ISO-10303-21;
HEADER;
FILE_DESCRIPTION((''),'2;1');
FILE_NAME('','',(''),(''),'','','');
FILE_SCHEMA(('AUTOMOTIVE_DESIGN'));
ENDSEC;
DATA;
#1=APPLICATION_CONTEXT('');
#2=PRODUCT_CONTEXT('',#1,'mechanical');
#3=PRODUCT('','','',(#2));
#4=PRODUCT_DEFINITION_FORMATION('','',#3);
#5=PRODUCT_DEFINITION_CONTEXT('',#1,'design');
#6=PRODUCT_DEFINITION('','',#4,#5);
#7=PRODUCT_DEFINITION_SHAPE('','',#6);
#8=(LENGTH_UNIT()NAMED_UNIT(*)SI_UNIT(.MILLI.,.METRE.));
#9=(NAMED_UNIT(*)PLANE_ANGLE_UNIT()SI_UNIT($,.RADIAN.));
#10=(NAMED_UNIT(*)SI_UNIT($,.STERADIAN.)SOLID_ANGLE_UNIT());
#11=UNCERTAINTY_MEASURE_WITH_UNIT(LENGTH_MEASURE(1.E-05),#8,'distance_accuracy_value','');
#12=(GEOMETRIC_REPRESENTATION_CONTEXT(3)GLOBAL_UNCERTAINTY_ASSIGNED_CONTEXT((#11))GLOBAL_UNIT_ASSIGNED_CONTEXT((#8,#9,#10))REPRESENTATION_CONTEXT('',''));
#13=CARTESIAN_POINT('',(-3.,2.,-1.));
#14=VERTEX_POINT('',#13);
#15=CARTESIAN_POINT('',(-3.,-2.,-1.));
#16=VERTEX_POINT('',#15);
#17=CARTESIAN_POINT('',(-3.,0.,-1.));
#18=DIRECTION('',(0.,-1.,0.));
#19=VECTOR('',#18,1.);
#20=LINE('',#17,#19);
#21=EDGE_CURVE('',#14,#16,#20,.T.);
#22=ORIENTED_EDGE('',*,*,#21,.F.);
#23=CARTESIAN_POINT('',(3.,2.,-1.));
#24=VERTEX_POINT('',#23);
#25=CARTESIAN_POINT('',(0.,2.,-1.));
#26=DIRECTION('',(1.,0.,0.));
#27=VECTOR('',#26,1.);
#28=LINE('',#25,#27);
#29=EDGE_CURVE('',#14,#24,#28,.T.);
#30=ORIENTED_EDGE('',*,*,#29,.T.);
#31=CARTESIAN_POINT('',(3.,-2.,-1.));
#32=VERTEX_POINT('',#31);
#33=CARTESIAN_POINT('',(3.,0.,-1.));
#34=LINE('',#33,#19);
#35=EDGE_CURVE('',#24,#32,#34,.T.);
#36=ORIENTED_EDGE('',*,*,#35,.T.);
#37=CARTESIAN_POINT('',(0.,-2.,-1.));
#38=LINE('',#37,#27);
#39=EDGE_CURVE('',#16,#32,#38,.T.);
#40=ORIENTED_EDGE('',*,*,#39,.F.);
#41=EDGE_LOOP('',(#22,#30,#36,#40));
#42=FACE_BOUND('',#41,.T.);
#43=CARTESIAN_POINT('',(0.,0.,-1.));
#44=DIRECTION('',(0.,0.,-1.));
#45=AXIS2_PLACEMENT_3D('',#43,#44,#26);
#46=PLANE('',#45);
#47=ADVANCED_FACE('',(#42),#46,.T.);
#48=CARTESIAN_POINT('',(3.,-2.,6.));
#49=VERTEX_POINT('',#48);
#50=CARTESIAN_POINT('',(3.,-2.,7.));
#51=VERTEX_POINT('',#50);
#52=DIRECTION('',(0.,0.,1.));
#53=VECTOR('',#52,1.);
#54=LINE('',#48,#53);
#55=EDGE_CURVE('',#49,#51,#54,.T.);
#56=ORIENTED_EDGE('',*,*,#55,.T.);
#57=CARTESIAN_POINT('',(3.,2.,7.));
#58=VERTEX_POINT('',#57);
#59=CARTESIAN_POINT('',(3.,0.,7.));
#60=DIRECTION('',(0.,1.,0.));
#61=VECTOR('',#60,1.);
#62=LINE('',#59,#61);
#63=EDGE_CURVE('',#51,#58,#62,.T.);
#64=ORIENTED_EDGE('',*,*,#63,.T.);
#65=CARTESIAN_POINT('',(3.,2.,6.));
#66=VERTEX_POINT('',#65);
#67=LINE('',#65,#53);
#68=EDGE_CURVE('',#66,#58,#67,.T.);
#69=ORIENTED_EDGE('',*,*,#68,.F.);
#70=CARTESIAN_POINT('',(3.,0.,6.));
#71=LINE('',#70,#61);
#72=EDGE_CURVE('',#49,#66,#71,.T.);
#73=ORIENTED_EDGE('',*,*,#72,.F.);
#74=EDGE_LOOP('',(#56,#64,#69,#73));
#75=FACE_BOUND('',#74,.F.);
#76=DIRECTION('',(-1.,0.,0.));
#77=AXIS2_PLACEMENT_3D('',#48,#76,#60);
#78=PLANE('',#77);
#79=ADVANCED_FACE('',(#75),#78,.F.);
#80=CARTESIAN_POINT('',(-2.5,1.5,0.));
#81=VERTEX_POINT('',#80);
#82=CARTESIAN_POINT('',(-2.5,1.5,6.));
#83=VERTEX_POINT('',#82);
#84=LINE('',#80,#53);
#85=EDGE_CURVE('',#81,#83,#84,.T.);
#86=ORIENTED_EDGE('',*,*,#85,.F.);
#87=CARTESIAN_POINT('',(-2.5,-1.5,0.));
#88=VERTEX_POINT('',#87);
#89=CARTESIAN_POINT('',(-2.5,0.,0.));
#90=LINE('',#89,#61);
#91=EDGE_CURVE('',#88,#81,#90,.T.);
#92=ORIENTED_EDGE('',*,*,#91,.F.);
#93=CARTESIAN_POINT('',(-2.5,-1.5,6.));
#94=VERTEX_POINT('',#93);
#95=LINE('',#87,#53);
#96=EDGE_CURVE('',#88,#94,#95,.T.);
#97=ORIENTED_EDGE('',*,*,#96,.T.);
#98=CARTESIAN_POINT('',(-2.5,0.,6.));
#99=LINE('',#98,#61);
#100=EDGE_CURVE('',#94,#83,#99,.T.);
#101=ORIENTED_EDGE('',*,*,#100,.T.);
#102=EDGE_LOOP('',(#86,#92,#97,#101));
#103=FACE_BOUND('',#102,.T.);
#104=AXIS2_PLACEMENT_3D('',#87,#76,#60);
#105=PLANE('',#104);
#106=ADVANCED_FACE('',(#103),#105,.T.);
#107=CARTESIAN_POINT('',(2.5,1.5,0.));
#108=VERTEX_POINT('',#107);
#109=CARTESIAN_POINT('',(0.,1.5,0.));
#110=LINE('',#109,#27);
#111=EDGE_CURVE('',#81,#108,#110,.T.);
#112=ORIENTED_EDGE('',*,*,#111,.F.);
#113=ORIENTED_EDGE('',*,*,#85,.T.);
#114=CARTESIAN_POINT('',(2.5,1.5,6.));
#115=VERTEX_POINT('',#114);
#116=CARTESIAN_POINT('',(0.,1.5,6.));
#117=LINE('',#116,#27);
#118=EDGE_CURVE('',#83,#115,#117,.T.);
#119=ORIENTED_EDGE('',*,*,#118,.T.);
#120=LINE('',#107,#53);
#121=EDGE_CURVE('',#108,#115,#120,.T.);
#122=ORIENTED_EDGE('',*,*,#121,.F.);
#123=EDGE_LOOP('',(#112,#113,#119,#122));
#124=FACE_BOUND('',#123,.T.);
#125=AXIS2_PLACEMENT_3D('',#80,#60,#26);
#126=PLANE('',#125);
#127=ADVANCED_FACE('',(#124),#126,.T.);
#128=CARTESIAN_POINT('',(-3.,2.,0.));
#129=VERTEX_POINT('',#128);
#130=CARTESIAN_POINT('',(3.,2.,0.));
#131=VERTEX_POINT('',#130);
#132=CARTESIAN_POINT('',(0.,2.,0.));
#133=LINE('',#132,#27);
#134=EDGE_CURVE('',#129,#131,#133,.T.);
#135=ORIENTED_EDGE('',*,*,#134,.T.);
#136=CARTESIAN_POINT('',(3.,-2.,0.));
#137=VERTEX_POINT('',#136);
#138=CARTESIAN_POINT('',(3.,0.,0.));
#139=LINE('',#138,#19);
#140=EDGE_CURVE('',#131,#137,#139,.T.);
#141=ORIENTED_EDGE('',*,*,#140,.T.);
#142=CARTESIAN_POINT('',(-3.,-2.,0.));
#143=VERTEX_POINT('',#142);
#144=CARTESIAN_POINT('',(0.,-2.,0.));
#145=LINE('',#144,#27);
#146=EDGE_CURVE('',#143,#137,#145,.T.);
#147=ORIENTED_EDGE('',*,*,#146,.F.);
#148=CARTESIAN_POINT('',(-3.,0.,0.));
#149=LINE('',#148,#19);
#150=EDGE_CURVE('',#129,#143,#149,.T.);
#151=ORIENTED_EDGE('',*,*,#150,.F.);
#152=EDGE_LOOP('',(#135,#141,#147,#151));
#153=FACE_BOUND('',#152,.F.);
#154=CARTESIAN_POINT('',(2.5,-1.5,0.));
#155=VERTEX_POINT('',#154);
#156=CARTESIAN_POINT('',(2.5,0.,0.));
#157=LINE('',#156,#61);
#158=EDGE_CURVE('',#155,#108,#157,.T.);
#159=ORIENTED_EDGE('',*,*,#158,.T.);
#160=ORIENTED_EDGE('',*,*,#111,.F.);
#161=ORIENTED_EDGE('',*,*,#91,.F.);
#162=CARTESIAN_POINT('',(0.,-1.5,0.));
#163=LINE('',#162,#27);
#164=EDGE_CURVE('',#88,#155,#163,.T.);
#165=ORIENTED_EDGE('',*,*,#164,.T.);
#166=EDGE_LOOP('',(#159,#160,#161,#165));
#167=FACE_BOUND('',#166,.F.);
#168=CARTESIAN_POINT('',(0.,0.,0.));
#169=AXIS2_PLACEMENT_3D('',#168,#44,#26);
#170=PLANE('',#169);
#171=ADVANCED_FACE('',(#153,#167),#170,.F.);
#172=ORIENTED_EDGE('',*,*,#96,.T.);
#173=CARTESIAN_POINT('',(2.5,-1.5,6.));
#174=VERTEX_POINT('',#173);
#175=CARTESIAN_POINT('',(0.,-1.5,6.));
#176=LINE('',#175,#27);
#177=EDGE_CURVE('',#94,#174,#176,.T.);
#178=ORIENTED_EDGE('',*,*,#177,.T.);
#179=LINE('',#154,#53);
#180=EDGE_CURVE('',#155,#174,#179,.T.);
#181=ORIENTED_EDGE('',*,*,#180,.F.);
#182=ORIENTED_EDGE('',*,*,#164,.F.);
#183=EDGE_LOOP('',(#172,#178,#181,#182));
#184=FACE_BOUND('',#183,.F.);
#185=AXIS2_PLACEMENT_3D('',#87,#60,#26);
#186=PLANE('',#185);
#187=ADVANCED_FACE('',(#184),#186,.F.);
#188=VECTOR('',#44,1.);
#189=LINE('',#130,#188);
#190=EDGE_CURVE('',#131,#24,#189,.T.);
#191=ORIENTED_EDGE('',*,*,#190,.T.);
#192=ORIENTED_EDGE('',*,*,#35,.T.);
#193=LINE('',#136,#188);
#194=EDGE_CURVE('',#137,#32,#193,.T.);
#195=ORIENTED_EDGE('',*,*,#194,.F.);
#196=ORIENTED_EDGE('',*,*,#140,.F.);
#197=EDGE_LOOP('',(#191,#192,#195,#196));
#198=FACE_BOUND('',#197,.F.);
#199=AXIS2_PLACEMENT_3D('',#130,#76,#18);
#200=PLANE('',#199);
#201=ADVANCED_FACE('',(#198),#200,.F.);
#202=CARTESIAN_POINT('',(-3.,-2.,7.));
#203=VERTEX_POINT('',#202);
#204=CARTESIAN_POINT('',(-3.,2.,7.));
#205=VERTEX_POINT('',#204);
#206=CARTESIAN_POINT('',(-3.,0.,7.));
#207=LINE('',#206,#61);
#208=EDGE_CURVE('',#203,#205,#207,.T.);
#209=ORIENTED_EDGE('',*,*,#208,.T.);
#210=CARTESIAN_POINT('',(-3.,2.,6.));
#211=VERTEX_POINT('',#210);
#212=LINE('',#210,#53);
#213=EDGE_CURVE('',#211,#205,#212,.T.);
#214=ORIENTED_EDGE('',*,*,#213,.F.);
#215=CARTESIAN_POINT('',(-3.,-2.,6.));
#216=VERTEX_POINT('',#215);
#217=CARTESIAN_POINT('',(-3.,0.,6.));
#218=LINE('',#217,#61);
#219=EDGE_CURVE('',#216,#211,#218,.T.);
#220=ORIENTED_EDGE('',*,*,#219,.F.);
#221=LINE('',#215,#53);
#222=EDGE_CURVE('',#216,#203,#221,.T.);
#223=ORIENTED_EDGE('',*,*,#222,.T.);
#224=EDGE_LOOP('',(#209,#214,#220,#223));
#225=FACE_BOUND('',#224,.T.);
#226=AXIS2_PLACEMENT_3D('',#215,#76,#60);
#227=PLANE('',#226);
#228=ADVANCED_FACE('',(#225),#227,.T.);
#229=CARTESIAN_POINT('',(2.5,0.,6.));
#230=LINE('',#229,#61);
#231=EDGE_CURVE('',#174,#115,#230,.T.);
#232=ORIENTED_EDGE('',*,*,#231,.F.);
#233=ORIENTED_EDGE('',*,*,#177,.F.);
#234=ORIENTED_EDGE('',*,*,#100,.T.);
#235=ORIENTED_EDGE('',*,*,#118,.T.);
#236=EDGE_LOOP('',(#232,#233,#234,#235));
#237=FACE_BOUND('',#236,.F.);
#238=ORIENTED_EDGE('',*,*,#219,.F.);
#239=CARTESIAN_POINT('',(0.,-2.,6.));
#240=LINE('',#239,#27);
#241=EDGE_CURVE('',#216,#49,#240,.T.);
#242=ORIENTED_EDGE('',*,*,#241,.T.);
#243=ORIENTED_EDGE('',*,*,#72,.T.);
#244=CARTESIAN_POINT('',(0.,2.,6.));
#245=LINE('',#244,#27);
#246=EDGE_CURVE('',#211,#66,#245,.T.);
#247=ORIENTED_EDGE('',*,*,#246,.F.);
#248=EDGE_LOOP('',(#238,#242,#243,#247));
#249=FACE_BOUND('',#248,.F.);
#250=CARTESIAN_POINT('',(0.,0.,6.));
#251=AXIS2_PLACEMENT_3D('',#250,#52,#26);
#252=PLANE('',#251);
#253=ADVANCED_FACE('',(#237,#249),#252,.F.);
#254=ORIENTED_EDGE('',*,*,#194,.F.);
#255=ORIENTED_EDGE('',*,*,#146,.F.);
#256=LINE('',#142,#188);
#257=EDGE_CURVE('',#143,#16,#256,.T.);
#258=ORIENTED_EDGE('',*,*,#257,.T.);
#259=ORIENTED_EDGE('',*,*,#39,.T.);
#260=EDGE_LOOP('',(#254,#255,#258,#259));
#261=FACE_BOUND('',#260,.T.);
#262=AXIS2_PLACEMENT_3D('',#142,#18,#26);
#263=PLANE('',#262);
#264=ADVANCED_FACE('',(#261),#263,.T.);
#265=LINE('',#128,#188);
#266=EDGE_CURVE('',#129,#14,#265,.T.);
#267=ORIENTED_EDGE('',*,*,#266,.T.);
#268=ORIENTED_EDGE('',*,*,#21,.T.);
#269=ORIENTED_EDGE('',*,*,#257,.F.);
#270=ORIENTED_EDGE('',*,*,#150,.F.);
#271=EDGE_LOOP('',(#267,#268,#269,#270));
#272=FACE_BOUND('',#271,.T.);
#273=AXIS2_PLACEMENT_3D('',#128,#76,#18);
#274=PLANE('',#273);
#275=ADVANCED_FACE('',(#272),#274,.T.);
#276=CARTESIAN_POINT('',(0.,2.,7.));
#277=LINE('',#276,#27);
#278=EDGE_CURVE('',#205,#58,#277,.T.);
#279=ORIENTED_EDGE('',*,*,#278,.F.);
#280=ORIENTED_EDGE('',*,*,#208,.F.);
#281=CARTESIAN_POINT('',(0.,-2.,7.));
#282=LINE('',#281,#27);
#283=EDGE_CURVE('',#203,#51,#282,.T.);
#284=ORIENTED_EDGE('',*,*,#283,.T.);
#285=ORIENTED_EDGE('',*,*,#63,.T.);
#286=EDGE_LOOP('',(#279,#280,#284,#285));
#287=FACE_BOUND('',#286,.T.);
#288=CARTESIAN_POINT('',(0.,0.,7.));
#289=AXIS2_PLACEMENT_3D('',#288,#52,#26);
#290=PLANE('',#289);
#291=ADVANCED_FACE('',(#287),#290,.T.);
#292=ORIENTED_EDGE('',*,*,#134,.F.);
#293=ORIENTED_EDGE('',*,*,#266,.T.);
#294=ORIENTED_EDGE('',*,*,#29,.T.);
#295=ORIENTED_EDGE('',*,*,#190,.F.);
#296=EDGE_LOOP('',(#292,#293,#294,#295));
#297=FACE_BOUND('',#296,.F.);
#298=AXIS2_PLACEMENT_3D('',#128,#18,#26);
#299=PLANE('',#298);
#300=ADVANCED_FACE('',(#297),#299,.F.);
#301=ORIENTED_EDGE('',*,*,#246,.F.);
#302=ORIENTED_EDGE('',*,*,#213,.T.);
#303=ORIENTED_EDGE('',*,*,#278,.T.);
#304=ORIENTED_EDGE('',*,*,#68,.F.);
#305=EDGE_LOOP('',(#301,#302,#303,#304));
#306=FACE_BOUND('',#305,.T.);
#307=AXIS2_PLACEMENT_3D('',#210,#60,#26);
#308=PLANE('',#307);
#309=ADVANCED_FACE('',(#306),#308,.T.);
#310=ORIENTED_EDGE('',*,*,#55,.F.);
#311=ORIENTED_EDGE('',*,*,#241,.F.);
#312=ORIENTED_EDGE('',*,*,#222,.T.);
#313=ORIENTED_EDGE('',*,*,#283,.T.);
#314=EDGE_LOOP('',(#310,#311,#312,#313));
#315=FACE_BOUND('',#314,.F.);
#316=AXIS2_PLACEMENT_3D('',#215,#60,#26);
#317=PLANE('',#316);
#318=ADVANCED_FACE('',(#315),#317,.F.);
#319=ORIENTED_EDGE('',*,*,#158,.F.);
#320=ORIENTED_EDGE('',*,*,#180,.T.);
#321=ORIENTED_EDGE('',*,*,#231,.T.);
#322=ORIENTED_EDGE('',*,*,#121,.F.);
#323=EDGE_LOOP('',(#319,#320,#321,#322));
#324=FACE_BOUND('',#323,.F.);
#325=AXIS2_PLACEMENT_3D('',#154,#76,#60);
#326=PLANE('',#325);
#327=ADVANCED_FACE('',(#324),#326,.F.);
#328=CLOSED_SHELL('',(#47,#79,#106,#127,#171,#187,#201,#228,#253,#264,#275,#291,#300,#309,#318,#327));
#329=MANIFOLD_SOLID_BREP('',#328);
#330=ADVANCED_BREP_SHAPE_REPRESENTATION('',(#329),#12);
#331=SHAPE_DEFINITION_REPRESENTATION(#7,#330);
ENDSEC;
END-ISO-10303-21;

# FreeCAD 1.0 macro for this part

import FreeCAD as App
import Part
import Sketcher
from FreeCAD import Vector


def add_polygon(sketch, points):
    """Adds a closed chain of lines whose ends are joined by coincident constraints."""
    first, n = sketch.GeometryCount, len(points)
    for a, b in zip(points, points[1:] + points[:1]):
        sketch.addGeometry(Part.LineSegment(App.Vector(*a, 0), App.Vector(*b, 0)), False)
    for i in range(n):
        sketch.addConstraint(Sketcher.Constraint("Coincident", first + i, 2, first + (i + 1) % n, 1))

doc = App.newDocument("Part")
body = doc.addObject("PartDesign::Body", "Body")

# Sketch on XY plane
sketch1 = body.newObject("Sketcher::SketchObject", "Sketch")
sketch1.AttachmentSupport = (doc.getObject("XY_Plane"), [""])
sketch1.MapMode = "FlatFace"
add_polygon(sketch1, [(-2.5, 1.5), (-2.5, -1.5), (2.5, -1.5), (2.5, 1.5)])  # lines 0-3
sketch1.addConstraint([
    Sketcher.Constraint("Vertical", 0),
    Sketcher.Constraint("Horizontal", 1),
    Sketcher.Constraint("Vertical", 2),
    Sketcher.Constraint("Horizontal", 3),
    Sketcher.Constraint("Symmetric", 0, 2, 2, 2, -1, 1),
    Sketcher.Constraint("DistanceX", 1, 1, 1, 2, 5.0),
    Sketcher.Constraint("DistanceY", 0, 2, 0, 1, 3.0),
])
pad1 = body.newObject("PartDesign::Pad", "Pad")
pad1.Profile = sketch1
pad1.Length = 6

# Sketch on XY plane
sketch2 = body.newObject("Sketcher::SketchObject", "Sketch001")
sketch2.AttachmentSupport = (doc.getObject("XY_Plane"), [""])
sketch2.MapMode = "FlatFace"
sketch2.AttachmentOffset = App.Placement(Vector(0, 0, 6), App.Rotation())
add_polygon(sketch2, [(-3, 2), (-3, -2), (3, -2), (3, 2)])  # lines 0-3
sketch2.addConstraint([
    Sketcher.Constraint("Vertical", 0),
    Sketcher.Constraint("Horizontal", 1),
    Sketcher.Constraint("Vertical", 2),
    Sketcher.Constraint("Horizontal", 3),
    Sketcher.Constraint("Symmetric", 0, 2, 2, 2, -1, 1),
    Sketcher.Constraint("DistanceX", 1, 1, 1, 2, 6.0),
    Sketcher.Constraint("DistanceY", 0, 2, 0, 1, 4.0),
])
pad2 = body.newObject("PartDesign::Pad", "Pad001")
pad2.Profile = sketch2
pad2.Length = 1

# Sketch on XY plane
sketch3 = body.newObject("Sketcher::SketchObject", "Sketch002")
sketch3.AttachmentSupport = (doc.getObject("XY_Plane"), [""])
sketch3.MapMode = "FlatFace"
add_polygon(sketch3, [(-3, -2), (-3, 2), (3, 2), (3, -2)])  # lines 0-3
sketch3.addConstraint([
    Sketcher.Constraint("Vertical", 0),
    Sketcher.Constraint("Horizontal", 1),
    Sketcher.Constraint("Vertical", 2),
    Sketcher.Constraint("Horizontal", 3),
    Sketcher.Constraint("Symmetric", 0, 2, 2, 2, -1, 1),
    Sketcher.Constraint("DistanceX", 1, 1, 1, 2, 6.0),
    Sketcher.Constraint("DistanceY", 0, 1, 0, 2, 4.0),
])
pad3 = body.newObject("PartDesign::Pad", "Pad002")
pad3.Profile = sketch3
pad3.Length = 1
pad3.Reversed = True

doc.recompute()
